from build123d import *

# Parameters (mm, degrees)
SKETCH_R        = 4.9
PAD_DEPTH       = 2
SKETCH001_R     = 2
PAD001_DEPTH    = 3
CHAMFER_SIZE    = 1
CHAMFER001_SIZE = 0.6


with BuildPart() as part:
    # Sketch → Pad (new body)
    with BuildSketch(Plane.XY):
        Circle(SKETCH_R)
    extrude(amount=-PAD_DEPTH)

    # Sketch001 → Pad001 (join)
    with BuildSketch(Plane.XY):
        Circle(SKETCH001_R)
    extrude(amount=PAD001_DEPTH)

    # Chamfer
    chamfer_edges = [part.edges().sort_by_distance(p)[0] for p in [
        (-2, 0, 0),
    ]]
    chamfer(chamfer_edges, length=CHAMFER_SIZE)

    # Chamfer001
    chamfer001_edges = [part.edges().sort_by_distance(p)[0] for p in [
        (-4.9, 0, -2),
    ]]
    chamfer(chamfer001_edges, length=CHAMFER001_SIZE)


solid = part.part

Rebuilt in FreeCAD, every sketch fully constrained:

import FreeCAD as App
import Part
import Sketcher
from FreeCAD import Vector
Q = App.Units.Quantity


def edges_at(feature, points):
    """Names of the edges that pass closest to the given points."""
    edges = feature.Shape.Edges
    near = lambda p: min(range(len(edges)), key=lambda i: edges[i].distToShape(Part.Vertex(*p))[0])
    return sorted({f"Edge{near(p) + 1}" for p in points})

doc = App.newDocument("Part")
body = doc.addObject("PartDesign::Body", "Body")

# Sketch on XY plane
sketch1 = body.newObject("Sketcher::SketchObject", "Sketch")
sketch1.AttachmentSupport = (doc.getObject("XY_Plane"), [""])
sketch1.MapMode = "FlatFace"
sketch1.addGeometry(Part.Circle(Vector(0, 0, 0), Vector(0, 0, 1), 4.9), False)
sketch1.addConstraint([
    Sketcher.Constraint("Coincident", 0, 3, -1, 1),
    Sketcher.Constraint("Diameter", 0, Q("9.8 mm")),
])
pad1 = body.newObject("PartDesign::Pad", "Pad")
pad1.Profile = sketch1
pad1.Length = 2
pad1.Reversed = True

# Sketch on XY plane
sketch2 = body.newObject("Sketcher::SketchObject", "Sketch001")
sketch2.AttachmentSupport = (doc.getObject("XY_Plane"), [""])
sketch2.MapMode = "FlatFace"
sketch2.addGeometry(Part.Circle(Vector(0, 0, 0), Vector(0, 0, 1), 2), False)
sketch2.addConstraint([
    Sketcher.Constraint("Coincident", 0, 3, -1, 1),
    Sketcher.Constraint("Diameter", 0, Q("4 mm")),
])
pad2 = body.newObject("PartDesign::Pad", "Pad001")
pad2.Profile = sketch2
pad2.Length = 3
doc.recompute()

chamfer = body.newObject("PartDesign::Chamfer", "Chamfer")
chamfer.Base = (pad2, edges_at(pad2, [(-2, 0, 0)]))
chamfer.Size = 1
doc.recompute()

chamfer2 = body.newObject("PartDesign::Chamfer", "Chamfer001")
chamfer2.Base = (chamfer, edges_at(chamfer, [(-4.9, 0, -2)]))
chamfer2.Size = 0.6

doc.recompute()
